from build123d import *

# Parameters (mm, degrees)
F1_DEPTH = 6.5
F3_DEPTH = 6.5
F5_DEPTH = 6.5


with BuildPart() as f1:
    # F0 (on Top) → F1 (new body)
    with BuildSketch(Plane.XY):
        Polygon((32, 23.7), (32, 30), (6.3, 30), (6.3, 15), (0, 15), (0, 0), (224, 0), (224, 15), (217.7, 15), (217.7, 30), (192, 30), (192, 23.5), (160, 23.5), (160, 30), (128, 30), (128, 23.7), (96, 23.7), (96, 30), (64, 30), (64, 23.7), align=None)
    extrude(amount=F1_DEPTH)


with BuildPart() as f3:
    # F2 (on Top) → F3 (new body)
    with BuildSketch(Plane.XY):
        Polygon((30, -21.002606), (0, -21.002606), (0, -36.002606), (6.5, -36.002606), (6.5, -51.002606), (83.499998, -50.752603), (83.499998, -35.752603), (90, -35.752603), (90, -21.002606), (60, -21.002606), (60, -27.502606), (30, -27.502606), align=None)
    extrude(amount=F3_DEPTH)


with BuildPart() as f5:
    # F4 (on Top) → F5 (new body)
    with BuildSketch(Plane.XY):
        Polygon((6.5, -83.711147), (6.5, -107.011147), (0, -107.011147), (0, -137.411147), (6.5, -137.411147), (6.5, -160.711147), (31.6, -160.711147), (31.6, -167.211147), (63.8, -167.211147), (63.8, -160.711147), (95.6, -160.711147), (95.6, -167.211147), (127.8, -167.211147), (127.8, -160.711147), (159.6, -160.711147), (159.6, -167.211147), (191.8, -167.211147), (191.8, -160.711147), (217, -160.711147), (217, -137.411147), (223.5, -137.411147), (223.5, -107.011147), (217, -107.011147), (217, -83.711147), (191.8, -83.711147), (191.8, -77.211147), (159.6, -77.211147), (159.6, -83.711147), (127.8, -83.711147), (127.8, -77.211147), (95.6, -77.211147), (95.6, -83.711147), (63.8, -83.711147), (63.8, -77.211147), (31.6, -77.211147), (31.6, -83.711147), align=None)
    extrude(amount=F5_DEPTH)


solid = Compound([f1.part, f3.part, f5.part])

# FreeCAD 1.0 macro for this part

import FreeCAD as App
import Part
import Sketcher
from FreeCAD import Vector

doc = App.newDocument("Part")
body = doc.addObject("PartDesign::Body", "Body")

# Sketch on XY plane
sketch1 = body.newObject("Sketcher::SketchObject", "Sketch")
sketch1.AttachmentSupport = (doc.getObject("XY_Plane"), [""])
sketch1.MapMode = "FlatFace"
sketch1.addGeometry([
    Part.LineSegment(Vector(32, 24, 0), Vector(32, 30, 0)),  # 0
    Part.LineSegment(Vector(32, 30, 0), Vector(6, 30, 0)),  # 1
    Part.LineSegment(Vector(6, 30, 0), Vector(6, 15, 0)),  # 2
    Part.LineSegment(Vector(6, 15, 0), Vector(0, 15, 0)),  # 3
    Part.LineSegment(Vector(0, 15, 0), Vector(0, 0, 0)),  # 4
    Part.LineSegment(Vector(0, 0, 0), Vector(224, 0, 0)),  # 5
    Part.LineSegment(Vector(224, 0, 0), Vector(224, 15, 0)),  # 6
    Part.LineSegment(Vector(224, 15, 0), Vector(218, 15, 0)),  # 7
    Part.LineSegment(Vector(218, 15, 0), Vector(218, 30, 0)),  # 8
    Part.LineSegment(Vector(218, 30, 0), Vector(192, 30, 0)),  # 9
    Part.LineSegment(Vector(192, 30, 0), Vector(192, 24, 0)),  # 10
    Part.LineSegment(Vector(192, 24, 0), Vector(160, 24, 0)),  # 11
    Part.LineSegment(Vector(160, 24, 0), Vector(160, 30, 0)),  # 12
    Part.LineSegment(Vector(160, 30, 0), Vector(128, 30, 0)),  # 13
    Part.LineSegment(Vector(128, 30, 0), Vector(128, 24, 0)),  # 14
    Part.LineSegment(Vector(128, 24, 0), Vector(96, 24, 0)),  # 15
    Part.LineSegment(Vector(96, 24, 0), Vector(96, 30, 0)),  # 16
    Part.LineSegment(Vector(96, 30, 0), Vector(64, 30, 0)),  # 17
    Part.LineSegment(Vector(64, 30, 0), Vector(64, 24, 0)),  # 18
    Part.LineSegment(Vector(64, 24, 0), Vector(32, 24, 0)),  # 19
], False)
sketch1.addConstraint([
    Sketcher.Constraint("Coincident", 0, 2, 1, 1),
    Sketcher.Constraint("Coincident", 1, 2, 2, 1),
    Sketcher.Constraint("Coincident", 2, 2, 3, 1),
    Sketcher.Constraint("Coincident", 3, 2, 4, 1),
    Sketcher.Constraint("Coincident", 4, 2, 5, 1),
    Sketcher.Constraint("Coincident", 5, 2, 6, 1),
    Sketcher.Constraint("Coincident", 6, 2, 7, 1),
    Sketcher.Constraint("Coincident", 7, 2, 8, 1),
    Sketcher.Constraint("Coincident", 8, 2, 9, 1),
    Sketcher.Constraint("Coincident", 9, 2, 10, 1),
    Sketcher.Constraint("Coincident", 10, 2, 11, 1),
    Sketcher.Constraint("Coincident", 11, 2, 12, 1),
    Sketcher.Constraint("Coincident", 12, 2, 13, 1),
    Sketcher.Constraint("Coincident", 13, 2, 14, 1),
    Sketcher.Constraint("Coincident", 14, 2, 15, 1),
    Sketcher.Constraint("Coincident", 15, 2, 16, 1),
    Sketcher.Constraint("Coincident", 16, 2, 17, 1),
    Sketcher.Constraint("Coincident", 17, 2, 18, 1),
    Sketcher.Constraint("Coincident", 18, 2, 19, 1),
    Sketcher.Constraint("Coincident", 19, 2, 0, 1),
    Sketcher.Constraint("Vertical", 0),
    Sketcher.Constraint("Horizontal", 1),
    Sketcher.Constraint("Vertical", 2),
    Sketcher.Constraint("Horizontal", 3),
    Sketcher.Constraint("Vertical", 4),
    Sketcher.Constraint("Horizontal", 5),
    Sketcher.Constraint("Vertical", 6),
    Sketcher.Constraint("Horizontal", 7),
    Sketcher.Constraint("Vertical", 8),
    Sketcher.Constraint("Horizontal", 9),
    Sketcher.Constraint("Vertical", 10),
    Sketcher.Constraint("Horizontal", 11),
    Sketcher.Constraint("Vertical", 12),
    Sketcher.Constraint("Horizontal", 13),
    Sketcher.Constraint("Vertical", 14),
    Sketcher.Constraint("Horizontal", 15),
    Sketcher.Constraint("Vertical", 16),
    Sketcher.Constraint("Horizontal", 17),
    Sketcher.Constraint("Vertical", 18),
    Sketcher.Constraint("Horizontal", 19),
    Sketcher.Constraint("Coincident", 4, 2, -1, 1),
    Sketcher.Constraint("Horizontal", 3, 2, 6, 2),
    Sketcher.Constraint("Horizontal", 1, 2, 8, 2),
    Sketcher.Constraint("Horizontal", 9, 2, 12, 2),
    Sketcher.Constraint("Horizontal", 13, 2, 16, 2),
    Sketcher.Constraint("Horizontal", 15, 2, 18, 2),
    Sketcher.Constraint("Equal", 3, 7),
    Sketcher.Constraint("Equal", 1, 9),
    Sketcher.Constraint("Equal", 11, 13),
    Sketcher.Constraint("Equal", 13, 15),
    Sketcher.Constraint("Equal", 15, 17),
    Sketcher.Constraint("Equal", 17, 19),
    Sketcher.Constraint("Equal", 7, 0),
    Sketcher.Constraint("Equal", 2, 4),
    Sketcher.Constraint("DistanceX", 5, 1, 5, 2, 224.0),
    Sketcher.Constraint("DistanceX", 11, 2, 11, 1, 32.0),
    Sketcher.Constraint("DistanceY", 2, 2, 2, 1, 15.0),
    Sketcher.Constraint("DistanceX", 1, 2, 1, 1, 25.7),
    Sketcher.Constraint("DistanceY", 10, 2, 10, 1, 6.5),
])
pad1 = body.newObject("PartDesign::Pad", "Pad")
pad1.Profile = sketch1
pad1.Length = 6.5
body2 = doc.addObject("PartDesign::Body", "Body001")

# Sketch on XY plane
sketch2 = body2.newObject("Sketcher::SketchObject", "Sketch001")
sketch2.AttachmentSupport = (doc.getObject("XY_Plane001"), [""])
sketch2.MapMode = "FlatFace"
sketch2.addGeometry([
    Part.LineSegment(Vector(30, -21, 0), Vector(0, -21, 0)),  # 0
    Part.LineSegment(Vector(0, -21, 0), Vector(0, -36, 0)),  # 1
    Part.LineSegment(Vector(0, -36, 0), Vector(6, -36, 0)),  # 2
    Part.LineSegment(Vector(6, -36, 0), Vector(6, -51, 0)),  # 3
    Part.LineSegment(Vector(6, -51, 0), Vector(83, -51, 0)),  # 4
    Part.LineSegment(Vector(83, -51, 0), Vector(83, -36, 0)),  # 5
    Part.LineSegment(Vector(83, -36, 0), Vector(90, -36, 0)),  # 6
    Part.LineSegment(Vector(90, -36, 0), Vector(90, -21, 0)),  # 7
    Part.LineSegment(Vector(90, -21, 0), Vector(60, -21, 0)),  # 8
    Part.LineSegment(Vector(60, -21, 0), Vector(60, -28, 0)),  # 9
    Part.LineSegment(Vector(60, -28, 0), Vector(30, -28, 0)),  # 10
    Part.LineSegment(Vector(30, -28, 0), Vector(30, -21, 0)),  # 11
], False)
sketch2.addConstraint([
    Sketcher.Constraint("Coincident", 0, 2, 1, 1),
    Sketcher.Constraint("Coincident", 1, 2, 2, 1),
    Sketcher.Constraint("Coincident", 2, 2, 3, 1),
    Sketcher.Constraint("Coincident", 3, 2, 4, 1),
    Sketcher.Constraint("Coincident", 4, 2, 5, 1),
    Sketcher.Constraint("Coincident", 5, 2, 6, 1),
    Sketcher.Constraint("Coincident", 6, 2, 7, 1),
    Sketcher.Constraint("Coincident", 7, 2, 8, 1),
    Sketcher.Constraint("Coincident", 8, 2, 9, 1),
    Sketcher.Constraint("Coincident", 9, 2, 10, 1),
    Sketcher.Constraint("Coincident", 10, 2, 11, 1),
    Sketcher.Constraint("Coincident", 11, 2, 0, 1),
    Sketcher.Constraint("Horizontal", 0),
    Sketcher.Constraint("Vertical", 1),
    Sketcher.Constraint("Horizontal", 2),
    Sketcher.Constraint("Vertical", 3),
    Sketcher.Constraint("Vertical", 5),
    Sketcher.Constraint("Horizontal", 6),
    Sketcher.Constraint("Vertical", 7),
    Sketcher.Constraint("Horizontal", 8),
    Sketcher.Constraint("Vertical", 9),
    Sketcher.Constraint("Horizontal", 10),
    Sketcher.Constraint("Vertical", 11),
    Sketcher.Constraint("PointOnObject", 0, 2, -2),
    Sketcher.Constraint("Horizontal", 0, 2, 7, 2),
    Sketcher.Constraint("Equal", 2, 6),
    Sketcher.Constraint("Equal", 0, 8),
    Sketcher.Constraint("Equal", 8, 10),
    Sketcher.Constraint("Equal", 1, 3),
    Sketcher.Constraint("Equal", 3, 5),
    Sketcher.Constraint("Equal", 6, 9),
    Sketcher.Constraint("DistanceX", 0, 2, 0, 1, 30.0),
    Sketcher.Constraint("DistanceY", 1, 2, 1, 1, 15.0),
    Sketcher.Constraint("DistanceX", 2, 1, 2, 2, 6.5),
    Sketcher.Constraint("DistanceY", 7, 1, 7, 2, 14.749997),
    Sketcher.Constraint("DistanceY", 0, 2, -1, 1, 21.002606),
])
pad2 = body2.newObject("PartDesign::Pad", "Pad001")
pad2.Profile = sketch2
pad2.Length = 6.5
body3 = doc.addObject("PartDesign::Body", "Body002")

# Sketch on XY plane
sketch3 = body3.newObject("Sketcher::SketchObject", "Sketch002")
sketch3.AttachmentSupport = (doc.getObject("XY_Plane002"), [""])
sketch3.MapMode = "FlatFace"
sketch3.addGeometry([
    Part.LineSegment(Vector(6, -84, 0), Vector(6, -107, 0)),  # 0
    Part.LineSegment(Vector(6, -107, 0), Vector(0, -107, 0)),  # 1
    Part.LineSegment(Vector(0, -107, 0), Vector(0, -137, 0)),  # 2
    Part.LineSegment(Vector(0, -137, 0), Vector(6, -137, 0)),  # 3
    Part.LineSegment(Vector(6, -137, 0), Vector(6, -161, 0)),  # 4
    Part.LineSegment(Vector(6, -161, 0), Vector(32, -161, 0)),  # 5
    Part.LineSegment(Vector(32, -161, 0), Vector(32, -167, 0)),  # 6
    Part.LineSegment(Vector(32, -167, 0), Vector(64, -167, 0)),  # 7
    Part.LineSegment(Vector(64, -167, 0), Vector(64, -161, 0)),  # 8
    Part.LineSegment(Vector(64, -161, 0), Vector(96, -161, 0)),  # 9
    Part.LineSegment(Vector(96, -161, 0), Vector(96, -167, 0)),  # 10
    Part.LineSegment(Vector(96, -167, 0), Vector(128, -167, 0)),  # 11
    Part.LineSegment(Vector(128, -167, 0), Vector(128, -161, 0)),  # 12
    Part.LineSegment(Vector(128, -161, 0), Vector(160, -161, 0)),  # 13
    Part.LineSegment(Vector(160, -161, 0), Vector(160, -167, 0)),  # 14
    Part.LineSegment(Vector(160, -167, 0), Vector(192, -167, 0)),  # 15
    Part.LineSegment(Vector(192, -167, 0), Vector(192, -161, 0)),  # 16
    Part.LineSegment(Vector(192, -161, 0), Vector(217, -161, 0)),  # 17
    Part.LineSegment(Vector(217, -161, 0), Vector(217, -137, 0)),  # 18
    Part.LineSegment(Vector(217, -137, 0), Vector(224, -137, 0)),  # 19
    Part.LineSegment(Vector(224, -137, 0), Vector(224, -107, 0)),  # 20
    Part.LineSegment(Vector(224, -107, 0), Vector(217, -107, 0)),  # 21
    Part.LineSegment(Vector(217, -107, 0), Vector(217, -84, 0)),  # 22
    Part.LineSegment(Vector(217, -84, 0), Vector(192, -84, 0)),  # 23
    Part.LineSegment(Vector(192, -84, 0), Vector(192, -77, 0)),  # 24
    Part.LineSegment(Vector(192, -77, 0), Vector(160, -77, 0)),  # 25
    Part.LineSegment(Vector(160, -77, 0), Vector(160, -84, 0)),  # 26
    Part.LineSegment(Vector(160, -84, 0), Vector(128, -84, 0)),  # 27
    Part.LineSegment(Vector(128, -84, 0), Vector(128, -77, 0)),  # 28
    Part.LineSegment(Vector(128, -77, 0), Vector(96, -77, 0)),  # 29
    Part.LineSegment(Vector(96, -77, 0), Vector(96, -84, 0)),  # 30
    Part.LineSegment(Vector(96, -84, 0), Vector(64, -84, 0)),  # 31
    Part.LineSegment(Vector(64, -84, 0), Vector(64, -77, 0)),  # 32
    Part.LineSegment(Vector(64, -77, 0), Vector(32, -77, 0)),  # 33
    Part.LineSegment(Vector(32, -77, 0), Vector(32, -84, 0)),  # 34
    Part.LineSegment(Vector(32, -84, 0), Vector(6, -84, 0)),  # 35
], False)
sketch3.addConstraint([
    Sketcher.Constraint("Coincident", 0, 2, 1, 1),
    Sketcher.Constraint("Coincident", 1, 2, 2, 1),
    Sketcher.Constraint("Coincident", 2, 2, 3, 1),
    Sketcher.Constraint("Coincident", 3, 2, 4, 1),
    Sketcher.Constraint("Coincident", 4, 2, 5, 1),
    Sketcher.Constraint("Coincident", 5, 2, 6, 1),
    Sketcher.Constraint("Coincident", 6, 2, 7, 1),
    Sketcher.Constraint("Coincident", 7, 2, 8, 1),
    Sketcher.Constraint("Coincident", 8, 2, 9, 1),
    Sketcher.Constraint("Coincident", 9, 2, 10, 1),
    Sketcher.Constraint("Coincident", 10, 2, 11, 1),
    Sketcher.Constraint("Coincident", 11, 2, 12, 1),
    Sketcher.Constraint("Coincident", 12, 2, 13, 1),
    Sketcher.Constraint("Coincident", 13, 2, 14, 1),
    Sketcher.Constraint("Coincident", 14, 2, 15, 1),
    Sketcher.Constraint("Coincident", 15, 2, 16, 1),
    Sketcher.Constraint("Coincident", 16, 2, 17, 1),
    Sketcher.Constraint("Coincident", 17, 2, 18, 1),
    Sketcher.Constraint("Coincident", 18, 2, 19, 1),
    Sketcher.Constraint("Coincident", 19, 2, 20, 1),
    Sketcher.Constraint("Coincident", 20, 2, 21, 1),
    Sketcher.Constraint("Coincident", 21, 2, 22, 1),
    Sketcher.Constraint("Coincident", 22, 2, 23, 1),
    Sketcher.Constraint("Coincident", 23, 2, 24, 1),
    Sketcher.Constraint("Coincident", 24, 2, 25, 1),
    Sketcher.Constraint("Coincident", 25, 2, 26, 1),
    Sketcher.Constraint("Coincident", 26, 2, 27, 1),
    Sketcher.Constraint("Coincident", 27, 2, 28, 1),
    Sketcher.Constraint("Coincident", 28, 2, 29, 1),
    Sketcher.Constraint("Coincident", 29, 2, 30, 1),
    Sketcher.Constraint("Coincident", 30, 2, 31, 1),
    Sketcher.Constraint("Coincident", 31, 2, 32, 1),
    Sketcher.Constraint("Coincident", 32, 2, 33, 1),
    Sketcher.Constraint("Coincident", 33, 2, 34, 1),
    Sketcher.Constraint("Coincident", 34, 2, 35, 1),
    Sketcher.Constraint("Coincident", 35, 2, 0, 1),
    Sketcher.Constraint("Vertical", 0),
    Sketcher.Constraint("Horizontal", 1),
    Sketcher.Constraint("Vertical", 2),
    Sketcher.Constraint("Horizontal", 3),
    Sketcher.Constraint("Vertical", 4),
    Sketcher.Constraint("Horizontal", 5),
    Sketcher.Constraint("Vertical", 6),
    Sketcher.Constraint("Horizontal", 7),
    Sketcher.Constraint("Vertical", 8),
    Sketcher.Constraint("Horizontal", 9),
    Sketcher.Constraint("Vertical", 10),
    Sketcher.Constraint("Horizontal", 11),
    Sketcher.Constraint("Vertical", 12),
    Sketcher.Constraint("Horizontal", 13),
    Sketcher.Constraint("Vertical", 14),
    Sketcher.Constraint("Horizontal", 15),
    Sketcher.Constraint("Vertical", 16),
    Sketcher.Constraint("Horizontal", 17),
    Sketcher.Constraint("Vertical", 18),
    Sketcher.Constraint("Horizontal", 19),
    Sketcher.Constraint("Vertical", 20),
    Sketcher.Constraint("Horizontal", 21),
    Sketcher.Constraint("Vertical", 22),
    Sketcher.Constraint("Horizontal", 23),
    Sketcher.Constraint("Vertical", 24),
    Sketcher.Constraint("Horizontal", 25),
    Sketcher.Constraint("Vertical", 26),
    Sketcher.Constraint("Horizontal", 27),
    Sketcher.Constraint("Vertical", 28),
    Sketcher.Constraint("Horizontal", 29),
    Sketcher.Constraint("Vertical", 30),
    Sketcher.Constraint("Horizontal", 31),
    Sketcher.Constraint("Vertical", 32),
    Sketcher.Constraint("Horizontal", 33),
    Sketcher.Constraint("Vertical", 34),
    Sketcher.Constraint("Horizontal", 35),
    Sketcher.Constraint("PointOnObject", 1, 2, -2),
    Sketcher.Constraint("Horizontal", 5, 2, 8, 2),
    Sketcher.Constraint("Horizontal", 7, 2, 10, 2),
    Sketcher.Constraint("Horizontal", 9, 2, 12, 2),
    Sketcher.Constraint("Horizontal", 11, 2, 14, 2),
    Sketcher.Constraint("Horizontal", 13, 2, 16, 2),
    Sketcher.Constraint("Horizontal", 3, 2, 18, 2),
    Sketcher.Constraint("Horizontal", 1, 2, 20, 2),
    Sketcher.Constraint("Horizontal", 23, 2, 26, 2),
    Sketcher.Constraint("Horizontal", 25, 2, 28, 2),
    Sketcher.Constraint("Horizontal", 27, 2, 30, 2),
    Sketcher.Constraint("Horizontal", 29, 2, 32, 2),
    Sketcher.Constraint("Horizontal", 31, 2, 34, 2),
    Sketcher.Constraint("Vertical", 0, 2, 3, 2),
    Sketcher.Constraint("Vertical", 18, 2, 21, 2),
    Sketcher.Constraint("Vertical", 16, 2, 23, 2),
    Sketcher.Constraint("Vertical", 14, 2, 25, 2),
    Sketcher.Constraint("Vertical", 12, 2, 27, 2),
    Sketcher.Constraint("Vertical", 10, 2, 29, 2),
    Sketcher.Constraint("Vertical", 8, 2, 31, 2),
    Sketcher.Constraint("Vertical", 6, 2, 33, 2),
    Sketcher.Constraint("Equal", 7, 11),
    Sketcher.Constraint("Equal", 9, 13),
    Sketcher.Constraint("Equal", 11, 15),
    Sketcher.Constraint("Equal", 3, 19),
    Sketcher.Constraint("Equal", 0, 4),
    Sketcher.Constraint("Equal", 21, 6),
    Sketcher.Constraint("Equal", 16, 24),
    Sketcher.Constraint("DistanceX", 1, 2, 1, 1, 6.5),
    Sketcher.Constraint("DistanceX", 5, 1, 5, 2, 25.1),
    Sketcher.Constraint("DistanceX", 7, 1, 7, 2, 32.2),
    Sketcher.Constraint("DistanceX", 9, 1, 9, 2, 31.8),
    Sketcher.Constraint("DistanceX", 17, 1, 17, 2, 25.2),
    Sketcher.Constraint("DistanceY", 0, 2, 0, 1, 23.3),
    Sketcher.Constraint("DistanceY", 2, 2, 2, 1, 30.4),
    Sketcher.Constraint("DistanceY", 0, 2, -1, 1, 107.011147),
])
pad3 = body3.newObject("PartDesign::Pad", "Pad002")
pad3.Profile = sketch3
pad3.Length = 6.5

doc.recompute()
